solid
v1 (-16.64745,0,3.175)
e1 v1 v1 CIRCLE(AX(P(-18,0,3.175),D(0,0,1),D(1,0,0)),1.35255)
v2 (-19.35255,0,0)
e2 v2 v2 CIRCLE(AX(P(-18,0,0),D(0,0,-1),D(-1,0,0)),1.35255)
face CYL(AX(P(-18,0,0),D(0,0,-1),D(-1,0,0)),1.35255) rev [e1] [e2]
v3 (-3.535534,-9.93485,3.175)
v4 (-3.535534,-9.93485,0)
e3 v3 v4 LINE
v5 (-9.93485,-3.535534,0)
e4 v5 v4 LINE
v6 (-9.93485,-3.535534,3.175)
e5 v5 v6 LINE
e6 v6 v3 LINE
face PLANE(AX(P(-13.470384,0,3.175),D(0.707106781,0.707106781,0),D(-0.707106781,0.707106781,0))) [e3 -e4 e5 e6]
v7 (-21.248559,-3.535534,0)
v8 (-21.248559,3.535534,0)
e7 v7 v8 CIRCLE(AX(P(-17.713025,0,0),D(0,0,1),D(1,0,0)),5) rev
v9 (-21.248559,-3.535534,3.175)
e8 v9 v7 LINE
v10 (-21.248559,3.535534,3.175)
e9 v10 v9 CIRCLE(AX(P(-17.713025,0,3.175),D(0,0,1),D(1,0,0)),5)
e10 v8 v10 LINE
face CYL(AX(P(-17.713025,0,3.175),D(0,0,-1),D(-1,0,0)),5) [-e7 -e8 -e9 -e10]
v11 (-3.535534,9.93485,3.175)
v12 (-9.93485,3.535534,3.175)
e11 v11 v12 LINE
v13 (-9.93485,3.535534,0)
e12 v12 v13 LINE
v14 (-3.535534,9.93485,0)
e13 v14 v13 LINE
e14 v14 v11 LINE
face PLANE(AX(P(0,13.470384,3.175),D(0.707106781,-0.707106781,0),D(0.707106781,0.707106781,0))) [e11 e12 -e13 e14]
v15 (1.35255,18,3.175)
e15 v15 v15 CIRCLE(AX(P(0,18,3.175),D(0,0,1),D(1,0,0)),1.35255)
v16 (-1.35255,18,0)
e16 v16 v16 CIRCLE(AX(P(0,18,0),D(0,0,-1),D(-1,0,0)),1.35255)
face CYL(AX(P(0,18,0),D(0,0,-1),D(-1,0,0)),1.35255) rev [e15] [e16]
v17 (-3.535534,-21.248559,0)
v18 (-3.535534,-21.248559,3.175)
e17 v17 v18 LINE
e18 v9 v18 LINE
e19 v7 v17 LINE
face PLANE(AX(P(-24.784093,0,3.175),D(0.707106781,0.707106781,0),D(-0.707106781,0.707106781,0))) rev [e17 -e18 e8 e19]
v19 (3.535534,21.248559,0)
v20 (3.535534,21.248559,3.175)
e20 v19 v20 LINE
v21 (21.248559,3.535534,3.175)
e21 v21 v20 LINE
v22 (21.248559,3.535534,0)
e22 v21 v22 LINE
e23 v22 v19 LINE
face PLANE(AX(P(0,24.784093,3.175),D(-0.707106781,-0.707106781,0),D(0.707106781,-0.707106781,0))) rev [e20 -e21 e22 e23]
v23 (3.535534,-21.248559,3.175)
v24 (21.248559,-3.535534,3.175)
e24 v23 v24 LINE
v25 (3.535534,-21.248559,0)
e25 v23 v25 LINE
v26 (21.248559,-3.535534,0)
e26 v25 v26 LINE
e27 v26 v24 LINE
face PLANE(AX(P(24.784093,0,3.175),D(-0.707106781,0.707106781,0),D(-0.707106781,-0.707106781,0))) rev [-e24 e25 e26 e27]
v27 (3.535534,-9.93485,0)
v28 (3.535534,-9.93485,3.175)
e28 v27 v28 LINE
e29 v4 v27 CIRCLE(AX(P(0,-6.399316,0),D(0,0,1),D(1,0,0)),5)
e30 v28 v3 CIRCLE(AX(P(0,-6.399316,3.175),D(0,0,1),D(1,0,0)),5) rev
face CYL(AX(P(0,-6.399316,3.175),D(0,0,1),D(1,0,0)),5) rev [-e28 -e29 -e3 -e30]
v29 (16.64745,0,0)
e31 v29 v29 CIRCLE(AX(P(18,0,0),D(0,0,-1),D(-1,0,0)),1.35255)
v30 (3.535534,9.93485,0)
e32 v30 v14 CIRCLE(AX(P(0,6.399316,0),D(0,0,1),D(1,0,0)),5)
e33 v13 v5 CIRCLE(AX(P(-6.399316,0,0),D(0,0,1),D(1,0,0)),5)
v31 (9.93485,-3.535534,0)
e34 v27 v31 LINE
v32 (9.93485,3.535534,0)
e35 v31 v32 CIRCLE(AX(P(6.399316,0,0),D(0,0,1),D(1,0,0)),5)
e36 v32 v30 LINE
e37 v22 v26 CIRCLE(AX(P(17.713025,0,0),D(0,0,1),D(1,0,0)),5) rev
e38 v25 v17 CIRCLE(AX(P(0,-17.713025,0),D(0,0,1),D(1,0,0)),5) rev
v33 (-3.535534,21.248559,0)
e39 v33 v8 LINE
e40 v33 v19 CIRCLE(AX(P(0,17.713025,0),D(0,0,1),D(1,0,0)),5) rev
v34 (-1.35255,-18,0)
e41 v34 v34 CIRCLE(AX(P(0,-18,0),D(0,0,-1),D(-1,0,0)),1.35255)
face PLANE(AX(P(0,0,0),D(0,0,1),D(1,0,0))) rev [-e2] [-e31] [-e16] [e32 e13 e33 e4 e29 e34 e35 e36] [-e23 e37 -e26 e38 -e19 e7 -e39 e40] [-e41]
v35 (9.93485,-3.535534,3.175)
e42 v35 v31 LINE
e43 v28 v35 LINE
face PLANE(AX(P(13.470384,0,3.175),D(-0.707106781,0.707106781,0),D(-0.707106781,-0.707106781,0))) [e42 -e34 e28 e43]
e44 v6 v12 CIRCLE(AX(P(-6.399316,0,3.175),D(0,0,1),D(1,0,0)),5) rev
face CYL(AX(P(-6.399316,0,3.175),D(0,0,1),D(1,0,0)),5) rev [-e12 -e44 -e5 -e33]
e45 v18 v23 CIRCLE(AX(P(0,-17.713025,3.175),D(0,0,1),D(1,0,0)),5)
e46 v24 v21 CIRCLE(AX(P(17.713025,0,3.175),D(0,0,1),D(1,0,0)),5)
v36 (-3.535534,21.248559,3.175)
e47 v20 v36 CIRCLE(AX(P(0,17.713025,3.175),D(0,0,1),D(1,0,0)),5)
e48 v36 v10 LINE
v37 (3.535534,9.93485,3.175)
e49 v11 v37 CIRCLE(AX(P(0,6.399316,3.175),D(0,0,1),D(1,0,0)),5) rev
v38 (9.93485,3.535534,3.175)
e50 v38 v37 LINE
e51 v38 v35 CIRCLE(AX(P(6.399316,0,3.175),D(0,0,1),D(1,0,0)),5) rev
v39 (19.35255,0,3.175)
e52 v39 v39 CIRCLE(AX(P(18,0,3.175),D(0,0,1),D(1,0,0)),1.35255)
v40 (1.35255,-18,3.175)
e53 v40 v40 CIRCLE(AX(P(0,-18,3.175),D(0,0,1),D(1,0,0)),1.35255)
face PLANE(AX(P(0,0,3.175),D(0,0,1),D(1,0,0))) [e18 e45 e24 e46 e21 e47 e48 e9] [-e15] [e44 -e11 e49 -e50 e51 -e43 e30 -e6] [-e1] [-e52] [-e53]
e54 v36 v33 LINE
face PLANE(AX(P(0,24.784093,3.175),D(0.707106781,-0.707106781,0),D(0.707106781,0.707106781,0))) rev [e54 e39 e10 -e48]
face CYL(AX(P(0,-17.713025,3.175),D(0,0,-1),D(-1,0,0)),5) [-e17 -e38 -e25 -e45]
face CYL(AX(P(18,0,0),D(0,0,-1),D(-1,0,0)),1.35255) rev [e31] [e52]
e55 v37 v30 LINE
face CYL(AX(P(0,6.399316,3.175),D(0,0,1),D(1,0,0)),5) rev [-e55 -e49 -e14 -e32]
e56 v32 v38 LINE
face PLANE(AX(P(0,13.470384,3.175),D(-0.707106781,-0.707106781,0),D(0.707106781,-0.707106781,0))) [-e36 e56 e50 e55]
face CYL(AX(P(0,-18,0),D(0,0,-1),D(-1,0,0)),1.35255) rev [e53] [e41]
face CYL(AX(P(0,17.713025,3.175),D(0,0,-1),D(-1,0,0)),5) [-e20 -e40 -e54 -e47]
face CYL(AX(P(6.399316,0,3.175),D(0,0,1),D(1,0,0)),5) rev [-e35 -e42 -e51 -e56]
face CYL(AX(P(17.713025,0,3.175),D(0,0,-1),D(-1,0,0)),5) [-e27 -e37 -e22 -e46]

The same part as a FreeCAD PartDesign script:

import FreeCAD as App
import Part
import Sketcher
from FreeCAD import Vector
Q = App.Units.Quantity


def edges_at(feature, points):
    """Names of the edges that pass closest to the given points."""
    edges = feature.Shape.Edges
    near = lambda p: min(range(len(edges)), key=lambda i: edges[i].distToShape(Part.Vertex(*p))[0])
    return sorted({f"Edge{near(p) + 1}" for p in points})


def add_polygon(sketch, points):
    """Adds a closed chain of lines whose ends are joined by coincident constraints."""
    first, n = sketch.GeometryCount, len(points)
    for a, b in zip(points, points[1:] + points[:1]):
        sketch.addGeometry(Part.LineSegment(App.Vector(*a, 0), App.Vector(*b, 0)), False)
    for i in range(n):
        sketch.addConstraint(Sketcher.Constraint("Coincident", first + i, 2, first + (i + 1) % n, 1))

doc = App.newDocument("Part")
params = doc.addObject("Spreadsheet::Sheet", "Params")
for row, (alias, value) in enumerate([
    ("sketch1_length", "0.75 in"),
    ("pad1_length", "0.125 in"),
    ("fillet_radius", "5 mm"),
    ("hole_diameter", "0.1065 in"),
    ("hole_depth", "10.973 mm"),
    ("fillet2_radius", "5 mm"),
], start=1):
    params.set(f"A{row}", alias)
    params.set(f"B{row}", "=" + value)
    params.setAlias(f"B{row}", alias)

body = doc.addObject("PartDesign::Body", "Body")

sketch1 = doc.addObject("Sketcher::SketchObject", "Sketch")
body.addObject(sketch1)
sketch1.AttachmentSupport = (doc.XY_Plane, [""])
sketch1.MapMode = "FlatFace"
add_polygon(sketch1, [(25, 0), (0, 25), (-25, 0), (0, -25)])
add_polygon(sketch1, [(0, 13), (13, 0), (0, -13), (-13, 0)])
sketch1.addConstraint([
    Sketcher.Constraint("Symmetric", 0, 2, 2, 2, -1, 1),
    Sketcher.Constraint("Symmetric", 1, 2, 3, 2, -1, 1),
    Sketcher.Constraint("Symmetric", 4, 2, 6, 2, -1, 1),
    Sketcher.Constraint("Symmetric", 5, 2, 7, 2, -1, 1),
    Sketcher.Constraint("PointOnObject", 0, 2, -2),
    Sketcher.Constraint("PointOnObject", 1, 2, -1),
    Sketcher.Constraint("PointOnObject", 4, 2, -1),
    Sketcher.Constraint("PointOnObject", 5, 2, -2),
    Sketcher.Constraint("Perpendicular", 0, 1),
    Sketcher.Constraint("Perpendicular", 3, 4),
    Sketcher.Constraint("Distance", 4, Q("0.75 in")),
    Sketcher.Constraint("Distance", 0, Q("35.05 mm")),
])
sketch1.setExpression("Constraints[18]", "Params.sketch1_length")
pad1 = doc.addObject("PartDesign::Pad", "Pad")
body.addObject(pad1)
pad1.Profile = sketch1
pad1.setExpression("Length", "Params.pad1_length")
doc.recompute()

fillet = doc.addObject("PartDesign::Fillet", "Fillet")
body.addObject(fillet)
fillet.Base = (pad1, edges_at(pad1, [
    (0, 13.47, 1.587),
    (-13.47, 0, 1.587),
    (0, -13.47, 1.587),
    (13.47, 0, 1.587),
]))
fillet.setExpression("Radius", "Params.fillet_radius")

sketch2 = doc.addObject("Sketcher::SketchObject", "Sketch001")
body.addObject(sketch2)
sketch2.AttachmentSupport = (doc.XY_Plane, [""])
sketch2.MapMode = "FlatFace"
sketch2.addGeometry([
    Part.Circle(Vector(18, 0, 0), Vector(0, 0, 1), 1.4),
    Part.Circle(Vector(0, 18, 0), Vector(0, 0, 1), 1.4),
    Part.Circle(Vector(0, -18, 0), Vector(0, 0, 1), 1.4),
    Part.Circle(Vector(-18, 0, 0), Vector(0, 0, 1), 1.4),
], False)
sketch2.addConstraint([
    Sketcher.Constraint("Equal", 0, 1),
    Sketcher.Constraint("Equal", 1, 2),
    Sketcher.Constraint("Equal", 2, 3),
    Sketcher.Constraint("Symmetric", 1, 3, 2, 3, -1, 1),
    Sketcher.Constraint("Symmetric", 0, 3, 3, 3, -1, 1),
    Sketcher.Constraint("PointOnObject", 0, 3, -1),
    Sketcher.Constraint("PointOnObject", 1, 3, -2),
    Sketcher.Constraint("Diameter", 0, Q("0.1065 in")),
    Sketcher.Constraint("DistanceX", -1, 1, 0, 3, Q("18 mm")),
    Sketcher.Constraint("DistanceY", -1, 1, 1, 3, Q("18 mm")),
])
doc.recompute()
hole = doc.addObject("PartDesign::Hole", "Hole")
body.addObject(hole)
hole.Profile = sketch2
hole.ThreadType = "None"
hole.setExpression("Diameter", "Params.hole_diameter")
hole.DepthType = "Dimension"
hole.setExpression("Depth", "Params.hole_depth")
hole.DrillPoint = "Angled"
hole.DrillPointAngle = 118
hole.Reversed = True
doc.recompute()

fillet2 = doc.addObject("PartDesign::Fillet", "Fillet001")
body.addObject(fillet2)
fillet2.Base = (hole, edges_at(hole, [
    (0, 24.784, 1.587),
    (24.784, 0, 1.587),
    (0, -24.784, 1.587),
    (-24.784, 0, 1.587),
]))
fillet2.setExpression("Radius", "Params.fillet2_radius")

doc.recompute()
